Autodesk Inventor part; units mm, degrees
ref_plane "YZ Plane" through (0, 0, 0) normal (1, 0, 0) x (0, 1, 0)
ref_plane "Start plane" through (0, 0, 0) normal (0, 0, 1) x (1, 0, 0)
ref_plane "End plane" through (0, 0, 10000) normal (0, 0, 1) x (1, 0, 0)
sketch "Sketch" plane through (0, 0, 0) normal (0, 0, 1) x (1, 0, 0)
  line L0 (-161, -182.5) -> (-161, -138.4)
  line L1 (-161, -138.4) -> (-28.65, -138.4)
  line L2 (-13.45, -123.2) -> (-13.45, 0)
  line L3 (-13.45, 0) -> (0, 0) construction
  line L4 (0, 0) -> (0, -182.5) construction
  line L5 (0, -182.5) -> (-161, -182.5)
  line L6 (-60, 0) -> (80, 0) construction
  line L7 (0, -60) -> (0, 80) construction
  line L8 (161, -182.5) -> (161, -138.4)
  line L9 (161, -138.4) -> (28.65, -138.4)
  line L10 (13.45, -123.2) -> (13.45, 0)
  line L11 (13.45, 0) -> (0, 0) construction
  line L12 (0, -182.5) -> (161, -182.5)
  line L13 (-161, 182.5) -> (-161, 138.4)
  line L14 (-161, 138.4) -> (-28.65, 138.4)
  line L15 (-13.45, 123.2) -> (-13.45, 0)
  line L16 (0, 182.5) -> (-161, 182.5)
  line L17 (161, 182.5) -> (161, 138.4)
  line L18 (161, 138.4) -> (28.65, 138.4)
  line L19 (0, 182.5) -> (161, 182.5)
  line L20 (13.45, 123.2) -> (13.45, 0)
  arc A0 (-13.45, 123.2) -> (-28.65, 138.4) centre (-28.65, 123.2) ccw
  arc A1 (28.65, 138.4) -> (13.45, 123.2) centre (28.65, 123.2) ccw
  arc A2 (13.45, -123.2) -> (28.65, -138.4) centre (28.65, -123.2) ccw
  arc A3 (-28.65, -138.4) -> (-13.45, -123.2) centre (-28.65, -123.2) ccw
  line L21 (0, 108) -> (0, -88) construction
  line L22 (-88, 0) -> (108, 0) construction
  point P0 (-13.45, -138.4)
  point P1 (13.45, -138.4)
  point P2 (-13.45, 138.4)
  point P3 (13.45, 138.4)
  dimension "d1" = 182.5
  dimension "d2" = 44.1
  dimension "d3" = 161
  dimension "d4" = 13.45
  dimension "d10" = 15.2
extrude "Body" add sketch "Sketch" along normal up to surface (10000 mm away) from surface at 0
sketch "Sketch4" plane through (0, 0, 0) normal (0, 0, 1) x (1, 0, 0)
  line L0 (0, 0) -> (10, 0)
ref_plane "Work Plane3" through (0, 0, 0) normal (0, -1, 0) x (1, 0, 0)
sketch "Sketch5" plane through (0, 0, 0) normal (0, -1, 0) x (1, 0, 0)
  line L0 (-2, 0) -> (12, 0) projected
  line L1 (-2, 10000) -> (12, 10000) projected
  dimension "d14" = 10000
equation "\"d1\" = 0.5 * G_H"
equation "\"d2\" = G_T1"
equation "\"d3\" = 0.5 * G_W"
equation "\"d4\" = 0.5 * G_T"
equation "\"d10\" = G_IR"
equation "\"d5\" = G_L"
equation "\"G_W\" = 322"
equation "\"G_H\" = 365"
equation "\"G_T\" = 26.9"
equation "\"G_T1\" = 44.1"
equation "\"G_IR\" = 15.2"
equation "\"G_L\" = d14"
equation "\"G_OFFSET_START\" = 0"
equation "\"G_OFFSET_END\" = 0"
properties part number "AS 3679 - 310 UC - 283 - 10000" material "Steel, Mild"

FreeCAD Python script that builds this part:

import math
import FreeCAD as App
import Part
import Sketcher

V = App.Vector
Q = App.Units.Quantity

doc = App.newDocument("Part")
params = doc.addObject("Spreadsheet::Sheet", "Params")
for row, (alias, value) in enumerate([
    ("sketch1_radius", "15.2 mm"),
    ("sketch1_height", "44.1 mm"),
    ("pad1_length", "10000 mm"),
], start=1):
    params.set(f"A{row}", alias)
    params.set(f"B{row}", "=" + value)
    params.setAlias(f"B{row}", alias)

body = doc.addObject("PartDesign::Body", "Body")

# Sketch on XY plane
sketch1 = body.newObject("Sketcher::SketchObject", "Sketch")
sketch1.AttachmentSupport = (doc.getObject("XY_Plane"), [""])
sketch1.MapMode = "FlatFace"
sketch1.addGeometry([
    Part.LineSegment(V(-161, -138.4, 0), V(-161, -182.5, 0)),  # 0
    Part.LineSegment(V(-161, -182.5, 0), V(161, -182.5, 0)),  # 1
    Part.LineSegment(V(161, -182.5, 0), V(161, -138.4, 0)),  # 2
    Part.LineSegment(V(161, -138.4, 0), V(28.65, -138.4, 0)),  # 3
    Part.ArcOfCircle(Part.Circle(V(28.65, -123.2, 0), V(0, 0, 1), 15.2), math.radians(180), math.radians(270)),  # 4
    Part.LineSegment(V(13.45, -123.2, 0), V(13.45, 123.2, 0)),  # 5
    Part.ArcOfCircle(Part.Circle(V(28.65, 123.2, 0), V(0, 0, 1), 15.2), math.radians(90), math.radians(180)),  # 6
    Part.LineSegment(V(28.65, 138.4, 0), V(161, 138.4, 0)),  # 7
    Part.LineSegment(V(161, 138.4, 0), V(161, 182.5, 0)),  # 8
    Part.LineSegment(V(161, 182.5, 0), V(-161, 182.5, 0)),  # 9
    Part.LineSegment(V(-161, 182.5, 0), V(-161, 138.4, 0)),  # 10
    Part.LineSegment(V(-161, 138.4, 0), V(-28.65, 138.4, 0)),  # 11
    Part.ArcOfCircle(Part.Circle(V(-28.65, 123.2, 0), V(0, 0, 1), 15.2), math.radians(0), math.radians(90)),  # 12
    Part.LineSegment(V(-13.45, 123.2, 0), V(-13.45, -123.2, 0)),  # 13
    Part.ArcOfCircle(Part.Circle(V(-28.65, -123.2, 0), V(0, 0, 1), 15.2), math.radians(-90), math.radians(0)),  # 14
    Part.LineSegment(V(-28.65, -138.4, 0), V(-161, -138.4, 0)),  # 15
], False)
sketch1.addConstraint([
    Sketcher.Constraint("Coincident", 0, 2, 1, 1),
    Sketcher.Constraint("Coincident", 1, 2, 2, 1),
    Sketcher.Constraint("Coincident", 2, 2, 3, 1),
    Sketcher.Constraint("Tangent", 3, 2, 4, 2),
    Sketcher.Constraint("Tangent", 4, 1, 5, 1),
    Sketcher.Constraint("Tangent", 5, 2, 6, 2),
    Sketcher.Constraint("Tangent", 6, 1, 7, 1),
    Sketcher.Constraint("Coincident", 7, 2, 8, 1),
    Sketcher.Constraint("Coincident", 8, 2, 9, 1),
    Sketcher.Constraint("Coincident", 9, 2, 10, 1),
    Sketcher.Constraint("Coincident", 10, 2, 11, 1),
    Sketcher.Constraint("Tangent", 11, 2, 12, 2),
    Sketcher.Constraint("Tangent", 12, 1, 13, 1),
    Sketcher.Constraint("Tangent", 13, 2, 14, 2),
    Sketcher.Constraint("Tangent", 14, 1, 15, 1),
    Sketcher.Constraint("Coincident", 15, 2, 0, 1),
    Sketcher.Constraint("Vertical", 0),
    Sketcher.Constraint("Horizontal", 1),
    Sketcher.Constraint("Vertical", 2),
    Sketcher.Constraint("Horizontal", 3),
    Sketcher.Constraint("Vertical", 5),
    Sketcher.Constraint("Horizontal", 7),
    Sketcher.Constraint("Vertical", 8),
    Sketcher.Constraint("Horizontal", 9),
    Sketcher.Constraint("Vertical", 10),
    Sketcher.Constraint("Horizontal", 11),
    Sketcher.Constraint("Vertical", 13),
    Sketcher.Constraint("Horizontal", 15),
    Sketcher.Constraint("Equal", 4, 6),
    Sketcher.Constraint("Equal", 6, 12),
    Sketcher.Constraint("Equal", 12, 14),
    Sketcher.Constraint("Symmetric", 4, 3, 12, 3, -1, 1),
    Sketcher.Constraint("Symmetric", 0, 2, 8, 2, -1, 1),
    Sketcher.Constraint("Symmetric", 7, 2, 10, 2, -2),
    Sketcher.Constraint("Symmetric", 2, 2, 15, 2, -2),
    Sketcher.Constraint("Radius", 4, Q("15.2 mm")),
    Sketcher.Constraint("DistanceY", 0, 2, 0, 1, Q("44.1 mm")),
    Sketcher.Constraint("DistanceX", 0, 2, -1, 1, Q("161 mm")),
    Sketcher.Constraint("DistanceY", 0, 2, -1, 1, Q("182.5 mm")),
    Sketcher.Constraint("DistanceX", -1, 1, 4, 1, Q("13.45 mm")),
])
sketch1.setExpression("Constraints[35]", "Params.sketch1_radius")
sketch1.setExpression("Constraints[36]", "Params.sketch1_height")
pad1 = body.newObject("PartDesign::Pad", "Pad")
pad1.Profile = sketch1
pad1.setExpression("Length", "Params.pad1_length")

doc.recompute()
